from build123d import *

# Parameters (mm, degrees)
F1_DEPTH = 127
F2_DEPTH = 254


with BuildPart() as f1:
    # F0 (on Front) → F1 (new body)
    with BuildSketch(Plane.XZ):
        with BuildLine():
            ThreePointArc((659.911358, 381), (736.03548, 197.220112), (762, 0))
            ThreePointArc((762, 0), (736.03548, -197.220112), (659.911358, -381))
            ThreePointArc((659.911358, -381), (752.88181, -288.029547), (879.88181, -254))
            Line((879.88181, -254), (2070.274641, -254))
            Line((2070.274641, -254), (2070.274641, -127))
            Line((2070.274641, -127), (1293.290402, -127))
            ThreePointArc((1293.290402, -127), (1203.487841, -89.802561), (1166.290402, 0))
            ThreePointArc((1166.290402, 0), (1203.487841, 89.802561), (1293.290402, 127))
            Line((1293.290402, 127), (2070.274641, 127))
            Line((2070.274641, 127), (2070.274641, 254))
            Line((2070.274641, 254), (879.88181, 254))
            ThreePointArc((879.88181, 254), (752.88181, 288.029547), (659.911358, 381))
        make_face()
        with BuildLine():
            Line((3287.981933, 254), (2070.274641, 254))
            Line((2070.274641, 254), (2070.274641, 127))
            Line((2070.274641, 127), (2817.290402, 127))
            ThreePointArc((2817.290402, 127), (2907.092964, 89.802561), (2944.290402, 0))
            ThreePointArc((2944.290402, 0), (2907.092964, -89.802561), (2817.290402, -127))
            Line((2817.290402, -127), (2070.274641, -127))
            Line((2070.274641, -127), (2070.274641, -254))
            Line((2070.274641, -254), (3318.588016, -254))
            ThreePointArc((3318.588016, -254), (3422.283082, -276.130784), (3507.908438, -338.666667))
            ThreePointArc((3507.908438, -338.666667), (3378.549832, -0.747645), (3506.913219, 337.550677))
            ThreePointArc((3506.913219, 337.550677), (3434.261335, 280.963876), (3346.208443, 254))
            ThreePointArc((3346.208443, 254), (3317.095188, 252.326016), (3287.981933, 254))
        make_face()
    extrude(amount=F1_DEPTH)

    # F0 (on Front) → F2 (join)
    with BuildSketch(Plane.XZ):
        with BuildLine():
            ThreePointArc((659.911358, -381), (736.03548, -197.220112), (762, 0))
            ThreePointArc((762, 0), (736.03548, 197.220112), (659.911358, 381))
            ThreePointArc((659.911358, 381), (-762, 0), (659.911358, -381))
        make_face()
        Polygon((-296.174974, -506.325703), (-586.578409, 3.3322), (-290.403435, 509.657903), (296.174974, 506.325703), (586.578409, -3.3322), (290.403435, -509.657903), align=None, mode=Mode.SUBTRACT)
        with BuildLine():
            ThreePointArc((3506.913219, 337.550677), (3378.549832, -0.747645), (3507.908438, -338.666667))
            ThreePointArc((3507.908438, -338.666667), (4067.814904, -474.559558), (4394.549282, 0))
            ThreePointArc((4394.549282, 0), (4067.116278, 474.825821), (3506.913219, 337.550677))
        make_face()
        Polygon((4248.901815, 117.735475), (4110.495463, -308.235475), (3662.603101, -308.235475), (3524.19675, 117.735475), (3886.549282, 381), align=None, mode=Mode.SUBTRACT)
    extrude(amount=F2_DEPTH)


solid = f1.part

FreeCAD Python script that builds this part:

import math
import FreeCAD as App
import Part
import Sketcher
from FreeCAD import Vector
Q = App.Units.Quantity


def add_polygon(sketch, points):
    """Adds a closed chain of lines whose ends are joined by coincident constraints."""
    first, n = sketch.GeometryCount, len(points)
    for a, b in zip(points, points[1:] + points[:1]):
        sketch.addGeometry(Part.LineSegment(App.Vector(*a, 0), App.Vector(*b, 0)), False)
    for i in range(n):
        sketch.addConstraint(Sketcher.Constraint("Coincident", first + i, 2, first + (i + 1) % n, 1))

doc = App.newDocument("Part")
params = doc.addObject("Spreadsheet::Sheet", "Params")
for row, (alias, value) in enumerate([
    ("sketch1_radius", "29.9999999 in"),
    ("sketch1_radius2", "9.9999998 in"),
    ("sketch1_radius3", "20 in"),
    ("sketch1_radius4", "5 in"),
    ("sketch1_width", "60 in"),
    ("pad1_length", "5 in"),
    ("sketch2_radius", "29.9999999 in"),
    ("sketch2_radius2", "30 in"),
    ("sketch2_radius3", "20 in"),
    ("pad2_length", "10 in"),
], start=1):
    params.set(f"A{row}", alias)
    params.set(f"B{row}", "=" + value)
    params.setAlias(f"B{row}", alias)

body = doc.addObject("PartDesign::Body", "Body")

# Sketch on XZ plane
sketch1 = body.newObject("Sketcher::SketchObject", "Sketch")
sketch1.AttachmentSupport = (doc.getObject("XZ_Plane"), [""])
sketch1.MapMode = "FlatFace"
sketch1.addGeometry([
    Part.ArcOfCircle(Part.Circle(Vector(0, 0, 0), Vector(0, 0, 1), 762), math.radians(0), math.radians(30)),  # 0
    Part.ArcOfCircle(Part.Circle(Vector(0, 0, 0), Vector(0, 0, 1), 762), math.radians(-30), math.radians(0)),  # 1
    Part.ArcOfCircle(Part.Circle(Vector(880, -508, 0), Vector(0, 0, 1), 254), math.radians(90), math.radians(150)),  # 2
    Part.LineSegment(Vector(880, -254, 0), Vector(3319, -254, 0)),  # 3
    Part.ArcOfCircle(Part.Circle(Vector(3319, -508, 0), Vector(0, 0, 1), 254), math.radians(42), math.radians(90)),  # 4
    Part.ArcOfCircle(Part.Circle(Vector(3887, 0, 0), Vector(0, 0, 1), 508), math.radians(138), math.radians(222)),  # 5
    Part.ArcOfCircle(Part.Circle(Vector(3317, 506, 0), Vector(0, 0, 1), 254), math.radians(-83), math.radians(-42)),  # 6
    Part.ArcOfCircle(Part.Circle(Vector(3317, 506, 0), Vector(0, 0, 1), 254), math.radians(-96.58), math.radians(-83.42)),  # 7
    Part.LineSegment(Vector(3288, 254, 0), Vector(880, 254, 0)),  # 8
    Part.ArcOfCircle(Part.Circle(Vector(880, 508, 0), Vector(0, 0, 1), 254), math.radians(-150), math.radians(-90)),  # 9
    Part.ArcOfCircle(Part.Circle(Vector(1293, 0, 0), Vector(0, 0, 1), 127), math.radians(-180), math.radians(-90)),  # 10
    Part.ArcOfCircle(Part.Circle(Vector(1293, 0, 0), Vector(0, 0, 1), 127), math.radians(90), math.radians(180)),  # 11
    Part.LineSegment(Vector(1293, 127, 0), Vector(2817, 127, 0)),  # 12
    Part.ArcOfCircle(Part.Circle(Vector(2817, 0, 0), Vector(0, 0, 1), 127), math.radians(0), math.radians(90)),  # 13
    Part.ArcOfCircle(Part.Circle(Vector(2817, 0, 0), Vector(0, 0, 1), 127), math.radians(-90), math.radians(0)),  # 14
    Part.LineSegment(Vector(2817, -127, 0), Vector(1293, -127, 0)),  # 15
], False)
sketch1.addConstraint([
    Sketcher.Constraint("Coincident", 0, 1, 1, 2),
    Sketcher.Constraint("Tangent", 1, 1, 2, 2),
    Sketcher.Constraint("Tangent", 2, 1, 3, 1),
    Sketcher.Constraint("Tangent", 3, 2, 4, 2),
    Sketcher.Constraint("Tangent", 4, 1, 5, 2),
    Sketcher.Constraint("Tangent", 5, 1, 6, 2),
    Sketcher.Constraint("Tangent", 6, 1, 7, 2),
    Sketcher.Constraint("Coincident", 7, 1, 8, 1),
    Sketcher.Constraint("Tangent", 8, 2, 9, 2),
    Sketcher.Constraint("Tangent", 9, 1, 0, 2),
    Sketcher.Constraint("Tangent", 10, 1, 11, 2),
    Sketcher.Constraint("Tangent", 11, 1, 12, 1),
    Sketcher.Constraint("Tangent", 12, 2, 13, 2),
    Sketcher.Constraint("Tangent", 13, 1, 14, 2),
    Sketcher.Constraint("Tangent", 14, 1, 15, 1),
    Sketcher.Constraint("Tangent", 15, 2, 10, 2),
    Sketcher.Constraint("Horizontal", 3),
    Sketcher.Constraint("Horizontal", 8),
    Sketcher.Constraint("Horizontal", 12),
    Sketcher.Constraint("Horizontal", 15),
    Sketcher.Constraint("Coincident", 0, 3, -1, 1),
    Sketcher.Constraint("Coincident", 1, 3, -1, 1),
    Sketcher.Constraint("Equal", 2, 4),
    Sketcher.Constraint("Equal", 2, 6),
    Sketcher.Constraint("Equal", 6, 9),
    Sketcher.Constraint("Equal", 10, 11),
    Sketcher.Constraint("Equal", 11, 13),
    Sketcher.Constraint("PointOnObject", 5, 3, -1),
    Sketcher.Constraint("PointOnObject", 10, 3, -1),
    Sketcher.Constraint("PointOnObject", 0, 1, -1),
    Sketcher.Constraint("PointOnObject", 10, 1, -1),
    Sketcher.Constraint("PointOnObject", 13, 1, -1),
    Sketcher.Constraint("Horizontal", 6, 1, 7, 1),
    Sketcher.Constraint("Vertical", 2, 3, 9, 3),
    Sketcher.Constraint("Radius", 0, Q("29.9999999 in")),
    Sketcher.Constraint("Radius", 2, Q("9.9999998 in")),
    Sketcher.Constraint("Radius", 5, Q("20 in")),
    Sketcher.Constraint("Radius", 10, Q("5 in")),
    Sketcher.Constraint("DistanceX", 12, 1, 12, 2, Q("60 in")),
    Sketcher.Constraint("DistanceY", 2, 3, -1, 1, Q("19.9999998 in")),
    Sketcher.Constraint("Radius", 7, Q("253.99999 mm")),
    Sketcher.Constraint("DistanceX", -1, 1, 10, 1, Q("1166.290402 mm")),
    Sketcher.Constraint("DistanceY", 2, 3, 7, 3, Q("1014.326002 mm")),
    Sketcher.Constraint("DistanceX", 3, 1, 3, 2, Q("2438.706206 mm")),
])
sketch1.setExpression("Constraints[34]", "Params.sketch1_radius")
sketch1.setExpression("Constraints[35]", "Params.sketch1_radius2")
sketch1.setExpression("Constraints[36]", "Params.sketch1_radius3")
sketch1.setExpression("Constraints[37]", "Params.sketch1_radius4")
sketch1.setExpression("Constraints[38]", "Params.sketch1_width")
pad1 = body.newObject("PartDesign::Pad", "Pad")
pad1.Profile = sketch1
pad1.setExpression("Length", "Params.pad1_length")

# Sketch on XZ plane
sketch2 = body.newObject("Sketcher::SketchObject", "Sketch001")
sketch2.AttachmentSupport = (doc.getObject("XZ_Plane"), [""])
sketch2.MapMode = "FlatFace"
sketch2.addGeometry(Part.ArcOfCircle(Part.Circle(Vector(0, 0, 0), Vector(0, 0, 1), 762), math.radians(-30), math.radians(0)), False)  # 0
sketch2.addGeometry(Part.ArcOfCircle(Part.Circle(Vector(0, 0, 0), Vector(0, 0, 1), 762), math.radians(0), math.radians(30)), False)  # 1
sketch2.addGeometry(Part.ArcOfCircle(Part.Circle(Vector(0, 0, 0), Vector(0, 0, 1), 762), math.radians(30), math.radians(330)), False)  # 2
add_polygon(sketch2, [(290, -510), (-296, -506), (-587, 3), (-290, 510), (296, 506), (587, -3)])  # lines 3-8
sketch2.addGeometry(Part.ArcOfCircle(Part.Circle(Vector(3887, 0, 0), Vector(0, 0, 1), 508), math.radians(138), math.radians(222)), False)  # 9
sketch2.addGeometry(Part.ArcOfCircle(Part.Circle(Vector(3887, 0, 0), Vector(0, 0, 1), 508), math.radians(-138), math.radians(0)), False)  # 10
sketch2.addGeometry(Part.ArcOfCircle(Part.Circle(Vector(3887, 0, 0), Vector(0, 0, 1), 508), math.radians(0), math.radians(138)), False)  # 11
add_polygon(sketch2, [(3887, 381), (4249, 118), (4110, -308), (3663, -308), (3524, 118)])  # lines 12-16
sketch2.addConstraint([
    Sketcher.Constraint("Coincident", 0, 2, 1, 1),
    Sketcher.Constraint("Coincident", 1, 2, 2, 1),
    Sketcher.Constraint("Coincident", 2, 2, 0, 1),
    Sketcher.Constraint("Coincident", 9, 2, 10, 1),
    Sketcher.Constraint("Coincident", 10, 2, 11, 1),
    Sketcher.Constraint("Coincident", 11, 2, 9, 1),
    Sketcher.Constraint("Horizontal", 14),
    Sketcher.Constraint("Coincident", 0, 3, -1, 1),
    Sketcher.Constraint("Coincident", 1, 3, -1, 1),
    Sketcher.Constraint("Coincident", 10, 3, 9, 3),
    Sketcher.Constraint("Equal", 10, 11),
    Sketcher.Constraint("Symmetric", 3, 2, 6, 2, -1, 1),
    Sketcher.Constraint("Symmetric", 4, 2, 7, 2, -1, 1),
    Sketcher.Constraint("Symmetric", 5, 2, 8, 2, -1, 1),
    Sketcher.Constraint("PointOnObject", 9, 3, -1),
    Sketcher.Constraint("PointOnObject", 0, 2, -1),
    Sketcher.Constraint("PointOnObject", 10, 2, -1),
    Sketcher.Constraint("Horizontal", 12, 2, 15, 2),
    Sketcher.Constraint("Horizontal", 1, 2, 16, 2),
    Sketcher.Constraint("Vertical", 1, 2, 2, 2),
    Sketcher.Constraint("Vertical", 11, 3, 16, 2),
    Sketcher.Constraint("Equal", 3, 4),
    Sketcher.Constraint("Equal", 4, 5),
    Sketcher.Constraint("Equal", 12, 13),
    Sketcher.Constraint("Equal", 13, 15),
    Sketcher.Constraint("Equal", 15, 16),
    Sketcher.Constraint("Radius", 0, Q("29.9999999 in")),
    Sketcher.Constraint("Radius", 2, Q("30 in")),
    Sketcher.Constraint("Radius", 9, Q("20 in")),
    Sketcher.Constraint("DistanceY", -1, 1, 16, 2, Q("15 in")),
    Sketcher.Constraint("Angle", 12, Q("-36 deg")),
    Sketcher.Constraint("Angle", 13, Q("-108 deg")),
    Sketcher.Constraint("DistanceY", -1, 1, 4, 2, Q("3.3322 mm")),
    Sketcher.Constraint("DistanceX", -1, 1, 14, 2, Q("3662.603101 mm")),
    Sketcher.Constraint("DistanceY", 3, 2, 0, 3, Q("506.325702 mm")),
    Sketcher.Constraint("DistanceY", 1, 3, 5, 2, Q("509.657902 mm")),
    Sketcher.Constraint("Distance", 16, Q("447.892362 mm")),
    Sketcher.Constraint("DistanceX", 4, 2, -1, 1, Q("586.578409 mm")),
    Sketcher.Constraint("DistanceX", -1, 1, 9, 2, Q("3507.908438 mm")),
    Sketcher.Constraint("DistanceX", -1, 1, 11, 2, Q("3506.913219 mm")),
])
sketch2.setExpression("Constraints[37]", "Params.sketch2_radius")
sketch2.setExpression("Constraints[38]", "Params.sketch2_radius2")
sketch2.setExpression("Constraints[39]", "Params.sketch2_radius3")
pad2 = body.newObject("PartDesign::Pad", "Pad001")
pad2.Profile = sketch2
pad2.setExpression("Length", "Params.pad2_length")

doc.recompute()
